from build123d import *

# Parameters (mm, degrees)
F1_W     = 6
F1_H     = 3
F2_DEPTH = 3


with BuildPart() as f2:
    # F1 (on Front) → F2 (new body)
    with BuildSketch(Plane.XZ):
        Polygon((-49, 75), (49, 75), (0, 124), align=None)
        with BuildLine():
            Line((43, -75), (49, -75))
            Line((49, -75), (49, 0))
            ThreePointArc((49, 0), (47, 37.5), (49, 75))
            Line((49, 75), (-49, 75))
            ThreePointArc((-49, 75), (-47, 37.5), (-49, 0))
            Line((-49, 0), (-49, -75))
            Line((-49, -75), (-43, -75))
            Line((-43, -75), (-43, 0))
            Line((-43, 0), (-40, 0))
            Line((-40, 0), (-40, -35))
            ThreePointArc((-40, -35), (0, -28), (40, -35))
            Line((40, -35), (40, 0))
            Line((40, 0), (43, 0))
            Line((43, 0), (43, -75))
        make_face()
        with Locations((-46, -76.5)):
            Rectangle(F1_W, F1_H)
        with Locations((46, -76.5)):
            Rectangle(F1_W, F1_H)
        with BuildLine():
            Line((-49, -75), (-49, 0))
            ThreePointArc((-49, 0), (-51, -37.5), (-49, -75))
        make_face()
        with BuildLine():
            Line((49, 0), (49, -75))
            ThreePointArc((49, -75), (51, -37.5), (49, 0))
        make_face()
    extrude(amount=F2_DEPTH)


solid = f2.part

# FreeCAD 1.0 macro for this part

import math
import FreeCAD as App
import Part
import Sketcher

V = App.Vector

doc = App.newDocument("Part")
body = doc.addObject("PartDesign::Body", "Body")

sketch1 = body.newObject("Sketcher::SketchObject", "Sketch")
sketch1.AttachmentSupport = (doc.getObject("XZ_Plane"), [""])
sketch1.MapMode = "FlatFace"
sketch1.addGeometry([
    Part.LineSegment(V(49, 75, 0), V(0, 124, 0)),
    Part.LineSegment(V(0, 124, 0), V(-49, 75, 0)),
    Part.ArcOfCircle(Part.Circle(V(-399.6, 37.5, 0), V(0, 0, 1), 352.6), math.radians(-6.11), math.radians(6.11)),
    Part.ArcOfCircle(Part.Circle(V(301.6, -37.5, 0), V(0, 0, 1), 352.6), math.radians(173.89), math.radians(186.11)),
    Part.LineSegment(V(-49, -75, 0), V(-49, -78, 0)),
    Part.LineSegment(V(-49, -78, 0), V(-43, -78, 0)),
    Part.LineSegment(V(-43, -78, 0), V(-43, 0, 0)),
    Part.LineSegment(V(-43, 0, 0), V(-40, 0, 0)),
    Part.LineSegment(V(-40, 0, 0), V(-40, -35, 0)),
    Part.ArcOfCircle(Part.Circle(V(0, -145.8, 0), V(0, 0, 1), 117.8), math.radians(70), math.radians(110)),
    Part.LineSegment(V(40, -35, 0), V(40, 0, 0)),
    Part.LineSegment(V(40, 0, 0), V(43, 0, 0)),
    Part.LineSegment(V(43, 0, 0), V(43, -78, 0)),
    Part.LineSegment(V(43, -78, 0), V(49, -78, 0)),
    Part.LineSegment(V(49, -78, 0), V(49, -75, 0)),
    Part.ArcOfCircle(Part.Circle(V(-301.6, -37.5, 0), V(0, 0, 1), 352.6), math.radians(-6.11), math.radians(6.11)),
    Part.ArcOfCircle(Part.Circle(V(399.6, 37.5, 0), V(0, 0, 1), 352.6), math.radians(173.89), math.radians(186.11)),
], False)
sketch1.addConstraint([
    Sketcher.Constraint("Coincident", 0, 2, 1, 1),
    Sketcher.Constraint("Coincident", 1, 2, 2, 2),
    Sketcher.Constraint("Tangent", 2, 1, 3, 1),
    Sketcher.Constraint("Coincident", 3, 2, 4, 1),
    Sketcher.Constraint("Coincident", 4, 2, 5, 1),
    Sketcher.Constraint("Coincident", 5, 2, 6, 1),
    Sketcher.Constraint("Coincident", 6, 2, 7, 1),
    Sketcher.Constraint("Coincident", 7, 2, 8, 1),
    Sketcher.Constraint("Coincident", 8, 2, 9, 2),
    Sketcher.Constraint("Coincident", 9, 1, 10, 1),
    Sketcher.Constraint("Coincident", 10, 2, 11, 1),
    Sketcher.Constraint("Coincident", 11, 2, 12, 1),
    Sketcher.Constraint("Coincident", 12, 2, 13, 1),
    Sketcher.Constraint("Coincident", 13, 2, 14, 1),
    Sketcher.Constraint("Coincident", 14, 2, 15, 1),
    Sketcher.Constraint("Tangent", 15, 2, 16, 2),
    Sketcher.Constraint("Coincident", 16, 1, 0, 1),
    Sketcher.Constraint("Vertical", 4),
    Sketcher.Constraint("Horizontal", 5),
    Sketcher.Constraint("Vertical", 6),
    Sketcher.Constraint("Horizontal", 7),
    Sketcher.Constraint("Vertical", 8),
    Sketcher.Constraint("Vertical", 10),
    Sketcher.Constraint("Horizontal", 11),
    Sketcher.Constraint("Vertical", 12),
    Sketcher.Constraint("Horizontal", 13),
    Sketcher.Constraint("Vertical", 14),
    Sketcher.Constraint("Equal", 2, 3),
    Sketcher.Constraint("Equal", 3, 15),
    Sketcher.Constraint("Equal", 15, 16),
    Sketcher.Constraint("Symmetric", 7, 2, 10, 2, -1, 1),
    Sketcher.Constraint("Symmetric", 1, 2, 14, 2, -1, 1),
    Sketcher.Constraint("Symmetric", 2, 1, 15, 2, -1, 1),
    Sketcher.Constraint("Symmetric", 3, 2, 16, 1, -1, 1),
    Sketcher.Constraint("Symmetric", 3, 3, 15, 3, -2),
    Sketcher.Constraint("Symmetric", 6, 2, 11, 2, -2),
    Sketcher.Constraint("PointOnObject", 9, 3, -2),
    Sketcher.Constraint("PointOnObject", 0, 2, -2),
    Sketcher.Constraint("Perpendicular", 0, 1),
    Sketcher.Constraint("Horizontal", 5, 2, 12, 2),
    Sketcher.Constraint("Equal", 11, 4),
    Sketcher.Constraint("DistanceX", 5, 1, 5, 2, 6.0),
    Sketcher.Constraint("DistanceX", 7, 1, 7, 2, 3.0),
    Sketcher.Constraint("DistanceY", 6, 1, 6, 2, 78.0),
    Sketcher.Constraint("DistanceY", 8, 2, 8, 1, 35.0),
    Sketcher.Constraint("DistanceY", -1, 1, 0, 2, 124.0),
    Sketcher.Constraint("Radius", 2, 352.5625),
    Sketcher.Constraint("Radius", 9, 117.785714),
])
pad1 = body.newObject("PartDesign::Pad", "Pad")
pad1.Profile = sketch1
pad1.Length = 3

doc.recompute()
